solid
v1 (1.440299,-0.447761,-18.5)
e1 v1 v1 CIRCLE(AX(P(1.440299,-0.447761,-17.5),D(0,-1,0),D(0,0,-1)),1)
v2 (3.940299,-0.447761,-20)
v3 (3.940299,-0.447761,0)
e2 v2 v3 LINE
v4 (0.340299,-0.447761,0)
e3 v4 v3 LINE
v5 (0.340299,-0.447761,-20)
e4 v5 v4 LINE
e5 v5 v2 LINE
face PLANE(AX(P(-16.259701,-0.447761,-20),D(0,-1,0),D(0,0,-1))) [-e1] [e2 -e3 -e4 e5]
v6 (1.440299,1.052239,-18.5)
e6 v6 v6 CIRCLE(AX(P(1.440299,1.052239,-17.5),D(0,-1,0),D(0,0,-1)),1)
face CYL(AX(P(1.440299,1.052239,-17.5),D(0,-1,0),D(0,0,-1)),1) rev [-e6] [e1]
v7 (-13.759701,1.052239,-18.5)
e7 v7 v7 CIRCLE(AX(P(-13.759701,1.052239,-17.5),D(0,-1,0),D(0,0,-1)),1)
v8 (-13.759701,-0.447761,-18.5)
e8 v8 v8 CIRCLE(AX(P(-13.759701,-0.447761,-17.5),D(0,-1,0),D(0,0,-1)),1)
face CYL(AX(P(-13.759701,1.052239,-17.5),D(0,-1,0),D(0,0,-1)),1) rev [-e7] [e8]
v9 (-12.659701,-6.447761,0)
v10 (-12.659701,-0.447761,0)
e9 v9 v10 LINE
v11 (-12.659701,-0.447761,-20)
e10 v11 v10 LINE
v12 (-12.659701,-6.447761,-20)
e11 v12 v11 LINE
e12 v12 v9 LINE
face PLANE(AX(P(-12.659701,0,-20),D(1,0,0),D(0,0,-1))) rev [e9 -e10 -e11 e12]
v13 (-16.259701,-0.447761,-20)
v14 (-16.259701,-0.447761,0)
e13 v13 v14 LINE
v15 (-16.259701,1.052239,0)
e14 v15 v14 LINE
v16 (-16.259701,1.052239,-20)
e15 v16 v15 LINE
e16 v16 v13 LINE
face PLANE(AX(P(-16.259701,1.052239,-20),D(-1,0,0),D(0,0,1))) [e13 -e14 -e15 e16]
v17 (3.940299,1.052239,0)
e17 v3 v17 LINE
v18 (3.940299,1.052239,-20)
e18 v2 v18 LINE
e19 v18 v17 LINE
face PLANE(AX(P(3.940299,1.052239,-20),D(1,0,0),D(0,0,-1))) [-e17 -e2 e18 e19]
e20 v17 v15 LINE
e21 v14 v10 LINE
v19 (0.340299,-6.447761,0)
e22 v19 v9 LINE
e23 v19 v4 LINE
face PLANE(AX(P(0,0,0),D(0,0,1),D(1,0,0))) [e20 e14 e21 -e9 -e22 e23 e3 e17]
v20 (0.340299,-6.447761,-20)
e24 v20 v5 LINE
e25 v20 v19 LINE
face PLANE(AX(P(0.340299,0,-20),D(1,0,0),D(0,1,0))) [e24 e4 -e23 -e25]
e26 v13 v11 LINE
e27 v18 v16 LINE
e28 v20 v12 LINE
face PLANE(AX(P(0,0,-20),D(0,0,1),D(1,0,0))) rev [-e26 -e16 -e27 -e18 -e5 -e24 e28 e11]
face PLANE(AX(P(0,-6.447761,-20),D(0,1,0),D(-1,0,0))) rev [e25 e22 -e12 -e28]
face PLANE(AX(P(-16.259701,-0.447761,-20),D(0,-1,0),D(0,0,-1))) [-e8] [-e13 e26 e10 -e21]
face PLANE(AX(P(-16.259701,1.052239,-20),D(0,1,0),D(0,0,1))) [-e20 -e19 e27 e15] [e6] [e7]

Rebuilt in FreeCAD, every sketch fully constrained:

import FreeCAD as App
import Part
import Sketcher
from FreeCAD import Vector


def add_polygon(sketch, points):
    """Adds a closed chain of lines whose ends are joined by coincident constraints."""
    first, n = sketch.GeometryCount, len(points)
    for a, b in zip(points, points[1:] + points[:1]):
        sketch.addGeometry(Part.LineSegment(App.Vector(*a, 0), App.Vector(*b, 0)), False)
    for i in range(n):
        sketch.addConstraint(Sketcher.Constraint("Coincident", first + i, 2, first + (i + 1) % n, 1))

doc = App.newDocument("Part")
body = doc.addObject("PartDesign::Body", "Body")

# Sketch on XY plane
sketch1 = body.newObject("Sketcher::SketchObject", "Sketch")
sketch1.AttachmentSupport = (doc.getObject("XY_Plane"), [""])
sketch1.MapMode = "FlatFace"
add_polygon(sketch1, [(-16.259701, 1.052239), (-16.259701, -0.447761), (3.940299, -0.447761), (3.940299, 1.052239)])  # lines 0-3
sketch1.addConstraint([
    Sketcher.Constraint("Vertical", 0),
    Sketcher.Constraint("Horizontal", 1),
    Sketcher.Constraint("Vertical", 2),
    Sketcher.Constraint("Horizontal", 3),
    Sketcher.Constraint("DistanceX", 1, 1, 1, 2, 20.2),
    Sketcher.Constraint("DistanceY", 0, 2, 0, 1, 1.5),
    Sketcher.Constraint("DistanceX", 0, 2, -1, 1, 16.259701),
    Sketcher.Constraint("DistanceY", 0, 2, -1, 1, 0.447761),
])
pad1 = body.newObject("PartDesign::Pad", "Pad")
pad1.Profile = sketch1
pad1.Length = 20
pad1.Reversed = True

# Sketch on XY plane
sketch2 = body.newObject("Sketcher::SketchObject", "Sketch001")
sketch2.AttachmentSupport = (doc.getObject("XY_Plane"), [""])
sketch2.MapMode = "FlatFace"
add_polygon(sketch2, [(-12.659701, -0.447761), (-12.659701, -6.447761), (0.340299, -6.447761), (0.340299, -0.447761)])  # lines 0-3
sketch2.addConstraint([
    Sketcher.Constraint("Vertical", 0),
    Sketcher.Constraint("Horizontal", 1),
    Sketcher.Constraint("Vertical", 2),
    Sketcher.Constraint("Horizontal", 3),
    Sketcher.Constraint("DistanceX", 1, 1, 1, 2, 13.0),
    Sketcher.Constraint("DistanceY", 0, 2, 0, 1, 6.0),
    Sketcher.Constraint("DistanceX", 0, 2, -1, 1, 12.659701),
    Sketcher.Constraint("DistanceY", 0, 2, -1, 1, 6.447761),
])
pad2 = body.newObject("PartDesign::Pad", "Pad001")
pad2.Profile = sketch2
pad2.Length = 20
pad2.Reversed = True

# Sketch on XZ plane
sketch3 = body.newObject("Sketcher::SketchObject", "Sketch002")
sketch3.AttachmentSupport = (doc.getObject("XZ_Plane"), [""])
sketch3.MapMode = "FlatFace"
sketch3.AttachmentOffset = App.Placement(Vector(0, 0, 0.447761), App.Rotation())
sketch3.addGeometry([
    Part.Circle(Vector(1.440299, -17.5, 0), Vector(0, 0, 1), 1),
    Part.Circle(Vector(-13.759701, -17.5, 0), Vector(0, 0, 1), 1),
], False)
sketch3.addConstraint([
    Sketcher.Constraint("Equal", 0, 1),
    Sketcher.Constraint("Horizontal", 0, 3, 1, 3),
    Sketcher.Constraint("Diameter", 0, 2.0),
    Sketcher.Constraint("DistanceY", 0, 3, -1, 1, 17.5),
    Sketcher.Constraint("DistanceX", 1, 3, 0, 3, 15.2),
    Sketcher.Constraint("DistanceX", -1, 1, 0, 3, 1.440299),
])
pocket1 = body.newObject("PartDesign::Pocket", "Pocket")
pocket1.Profile = sketch3
pocket1.Type = "ThroughAll"

doc.recompute()
